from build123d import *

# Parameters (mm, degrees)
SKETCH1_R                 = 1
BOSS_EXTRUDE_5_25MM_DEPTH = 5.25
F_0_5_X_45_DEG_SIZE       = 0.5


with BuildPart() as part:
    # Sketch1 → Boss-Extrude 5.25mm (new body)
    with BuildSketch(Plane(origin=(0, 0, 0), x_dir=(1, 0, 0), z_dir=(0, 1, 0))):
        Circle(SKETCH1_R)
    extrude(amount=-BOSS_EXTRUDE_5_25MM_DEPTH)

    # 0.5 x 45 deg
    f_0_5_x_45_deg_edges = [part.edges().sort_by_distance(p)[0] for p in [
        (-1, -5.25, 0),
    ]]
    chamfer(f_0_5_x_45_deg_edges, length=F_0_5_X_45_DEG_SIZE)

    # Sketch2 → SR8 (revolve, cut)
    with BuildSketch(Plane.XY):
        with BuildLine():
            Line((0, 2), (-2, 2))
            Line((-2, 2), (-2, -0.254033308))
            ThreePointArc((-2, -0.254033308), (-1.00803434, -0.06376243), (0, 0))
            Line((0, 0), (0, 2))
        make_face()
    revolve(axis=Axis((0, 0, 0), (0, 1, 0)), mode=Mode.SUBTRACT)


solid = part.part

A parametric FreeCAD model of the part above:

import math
import FreeCAD as App
import Part
import Sketcher

V = App.Vector
Q = App.Units.Quantity


def edges_at(feature, points):
    """Names of the edges that pass closest to the given points."""
    edges = feature.Shape.Edges
    near = lambda p: min(range(len(edges)), key=lambda i: edges[i].distToShape(Part.Vertex(*p))[0])
    return sorted({f"Edge{near(p) + 1}" for p in points})

doc = App.newDocument("Part")
body = doc.addObject("PartDesign::Body", "Body")

# Sketch on XZ plane
sketch1 = body.newObject("Sketcher::SketchObject", "Sketch")
sketch1.AttachmentSupport = (doc.getObject("XZ_Plane"), [""])
sketch1.MapMode = "FlatFace"
sketch1.addGeometry(Part.Circle(V(0, 0, 0), V(0, 0, 1), 1), False)
sketch1.addConstraint(Sketcher.Constraint("Coincident", 0, 3, -1, 1))
sketch1.addConstraint(Sketcher.Constraint("Diameter", 0, Q("2 mm")))
pad1 = body.newObject("PartDesign::Pad", "Pad")
pad1.Profile = sketch1
pad1.Length = 5.25
doc.recompute()

chamfer = body.newObject("PartDesign::Chamfer", "Chamfer")
chamfer.Base = (pad1, edges_at(pad1, [(-1, -5.25, 0)]))
chamfer.Size = 0.5

# Sketch on XY plane
sketch2 = body.newObject("Sketcher::SketchObject", "Sketch001")
sketch2.AttachmentSupport = (doc.getObject("XY_Plane"), [""])
sketch2.MapMode = "FlatFace"
sketch2.addGeometry(Part.LineSegment(V(0, 2, 0), V(-2, 2, 0)), False)
sketch2.addGeometry(Part.LineSegment(V(-2, 2, 0), V(-2, -0.3, 0)), False)
sketch2.addGeometry(Part.ArcOfCircle(Part.Circle(V(0, -8, 0), V(0, 0, 1), 8), math.radians(90), math.radians(104.48)), False)
sketch2.addGeometry(Part.LineSegment(V(0, 0, 0), V(0, 2, 0)), False)
sketch2.addConstraint(Sketcher.Constraint("Coincident", 0, 2, 1, 1))
sketch2.addConstraint(Sketcher.Constraint("Coincident", 1, 2, 2, 2))
sketch2.addConstraint(Sketcher.Constraint("Coincident", 2, 1, 3, 1))
sketch2.addConstraint(Sketcher.Constraint("Coincident", 3, 2, 0, 1))
sketch2.addConstraint(Sketcher.Constraint("Horizontal", 0))
sketch2.addConstraint(Sketcher.Constraint("Vertical", 1))
sketch2.addConstraint(Sketcher.Constraint("Vertical", 3))
sketch2.addConstraint(Sketcher.Constraint("Coincident", 2, 1, -1, 1))
sketch2.addConstraint(Sketcher.Constraint("PointOnObject", 2, 3, -2))
sketch2.addConstraint(Sketcher.Constraint("Equal", 0, 3))
sketch2.addConstraint(Sketcher.Constraint("Radius", 2, Q("8 mm")))
sketch2.addConstraint(Sketcher.Constraint("DistanceX", 0, 2, 0, 1, Q("2 mm")))
groove = body.newObject("PartDesign::Groove", "Groove")
groove.Profile = sketch2
groove.ReferenceAxis = (sketch2, ["V_Axis"])
groove.Angle = 360

doc.recompute()
